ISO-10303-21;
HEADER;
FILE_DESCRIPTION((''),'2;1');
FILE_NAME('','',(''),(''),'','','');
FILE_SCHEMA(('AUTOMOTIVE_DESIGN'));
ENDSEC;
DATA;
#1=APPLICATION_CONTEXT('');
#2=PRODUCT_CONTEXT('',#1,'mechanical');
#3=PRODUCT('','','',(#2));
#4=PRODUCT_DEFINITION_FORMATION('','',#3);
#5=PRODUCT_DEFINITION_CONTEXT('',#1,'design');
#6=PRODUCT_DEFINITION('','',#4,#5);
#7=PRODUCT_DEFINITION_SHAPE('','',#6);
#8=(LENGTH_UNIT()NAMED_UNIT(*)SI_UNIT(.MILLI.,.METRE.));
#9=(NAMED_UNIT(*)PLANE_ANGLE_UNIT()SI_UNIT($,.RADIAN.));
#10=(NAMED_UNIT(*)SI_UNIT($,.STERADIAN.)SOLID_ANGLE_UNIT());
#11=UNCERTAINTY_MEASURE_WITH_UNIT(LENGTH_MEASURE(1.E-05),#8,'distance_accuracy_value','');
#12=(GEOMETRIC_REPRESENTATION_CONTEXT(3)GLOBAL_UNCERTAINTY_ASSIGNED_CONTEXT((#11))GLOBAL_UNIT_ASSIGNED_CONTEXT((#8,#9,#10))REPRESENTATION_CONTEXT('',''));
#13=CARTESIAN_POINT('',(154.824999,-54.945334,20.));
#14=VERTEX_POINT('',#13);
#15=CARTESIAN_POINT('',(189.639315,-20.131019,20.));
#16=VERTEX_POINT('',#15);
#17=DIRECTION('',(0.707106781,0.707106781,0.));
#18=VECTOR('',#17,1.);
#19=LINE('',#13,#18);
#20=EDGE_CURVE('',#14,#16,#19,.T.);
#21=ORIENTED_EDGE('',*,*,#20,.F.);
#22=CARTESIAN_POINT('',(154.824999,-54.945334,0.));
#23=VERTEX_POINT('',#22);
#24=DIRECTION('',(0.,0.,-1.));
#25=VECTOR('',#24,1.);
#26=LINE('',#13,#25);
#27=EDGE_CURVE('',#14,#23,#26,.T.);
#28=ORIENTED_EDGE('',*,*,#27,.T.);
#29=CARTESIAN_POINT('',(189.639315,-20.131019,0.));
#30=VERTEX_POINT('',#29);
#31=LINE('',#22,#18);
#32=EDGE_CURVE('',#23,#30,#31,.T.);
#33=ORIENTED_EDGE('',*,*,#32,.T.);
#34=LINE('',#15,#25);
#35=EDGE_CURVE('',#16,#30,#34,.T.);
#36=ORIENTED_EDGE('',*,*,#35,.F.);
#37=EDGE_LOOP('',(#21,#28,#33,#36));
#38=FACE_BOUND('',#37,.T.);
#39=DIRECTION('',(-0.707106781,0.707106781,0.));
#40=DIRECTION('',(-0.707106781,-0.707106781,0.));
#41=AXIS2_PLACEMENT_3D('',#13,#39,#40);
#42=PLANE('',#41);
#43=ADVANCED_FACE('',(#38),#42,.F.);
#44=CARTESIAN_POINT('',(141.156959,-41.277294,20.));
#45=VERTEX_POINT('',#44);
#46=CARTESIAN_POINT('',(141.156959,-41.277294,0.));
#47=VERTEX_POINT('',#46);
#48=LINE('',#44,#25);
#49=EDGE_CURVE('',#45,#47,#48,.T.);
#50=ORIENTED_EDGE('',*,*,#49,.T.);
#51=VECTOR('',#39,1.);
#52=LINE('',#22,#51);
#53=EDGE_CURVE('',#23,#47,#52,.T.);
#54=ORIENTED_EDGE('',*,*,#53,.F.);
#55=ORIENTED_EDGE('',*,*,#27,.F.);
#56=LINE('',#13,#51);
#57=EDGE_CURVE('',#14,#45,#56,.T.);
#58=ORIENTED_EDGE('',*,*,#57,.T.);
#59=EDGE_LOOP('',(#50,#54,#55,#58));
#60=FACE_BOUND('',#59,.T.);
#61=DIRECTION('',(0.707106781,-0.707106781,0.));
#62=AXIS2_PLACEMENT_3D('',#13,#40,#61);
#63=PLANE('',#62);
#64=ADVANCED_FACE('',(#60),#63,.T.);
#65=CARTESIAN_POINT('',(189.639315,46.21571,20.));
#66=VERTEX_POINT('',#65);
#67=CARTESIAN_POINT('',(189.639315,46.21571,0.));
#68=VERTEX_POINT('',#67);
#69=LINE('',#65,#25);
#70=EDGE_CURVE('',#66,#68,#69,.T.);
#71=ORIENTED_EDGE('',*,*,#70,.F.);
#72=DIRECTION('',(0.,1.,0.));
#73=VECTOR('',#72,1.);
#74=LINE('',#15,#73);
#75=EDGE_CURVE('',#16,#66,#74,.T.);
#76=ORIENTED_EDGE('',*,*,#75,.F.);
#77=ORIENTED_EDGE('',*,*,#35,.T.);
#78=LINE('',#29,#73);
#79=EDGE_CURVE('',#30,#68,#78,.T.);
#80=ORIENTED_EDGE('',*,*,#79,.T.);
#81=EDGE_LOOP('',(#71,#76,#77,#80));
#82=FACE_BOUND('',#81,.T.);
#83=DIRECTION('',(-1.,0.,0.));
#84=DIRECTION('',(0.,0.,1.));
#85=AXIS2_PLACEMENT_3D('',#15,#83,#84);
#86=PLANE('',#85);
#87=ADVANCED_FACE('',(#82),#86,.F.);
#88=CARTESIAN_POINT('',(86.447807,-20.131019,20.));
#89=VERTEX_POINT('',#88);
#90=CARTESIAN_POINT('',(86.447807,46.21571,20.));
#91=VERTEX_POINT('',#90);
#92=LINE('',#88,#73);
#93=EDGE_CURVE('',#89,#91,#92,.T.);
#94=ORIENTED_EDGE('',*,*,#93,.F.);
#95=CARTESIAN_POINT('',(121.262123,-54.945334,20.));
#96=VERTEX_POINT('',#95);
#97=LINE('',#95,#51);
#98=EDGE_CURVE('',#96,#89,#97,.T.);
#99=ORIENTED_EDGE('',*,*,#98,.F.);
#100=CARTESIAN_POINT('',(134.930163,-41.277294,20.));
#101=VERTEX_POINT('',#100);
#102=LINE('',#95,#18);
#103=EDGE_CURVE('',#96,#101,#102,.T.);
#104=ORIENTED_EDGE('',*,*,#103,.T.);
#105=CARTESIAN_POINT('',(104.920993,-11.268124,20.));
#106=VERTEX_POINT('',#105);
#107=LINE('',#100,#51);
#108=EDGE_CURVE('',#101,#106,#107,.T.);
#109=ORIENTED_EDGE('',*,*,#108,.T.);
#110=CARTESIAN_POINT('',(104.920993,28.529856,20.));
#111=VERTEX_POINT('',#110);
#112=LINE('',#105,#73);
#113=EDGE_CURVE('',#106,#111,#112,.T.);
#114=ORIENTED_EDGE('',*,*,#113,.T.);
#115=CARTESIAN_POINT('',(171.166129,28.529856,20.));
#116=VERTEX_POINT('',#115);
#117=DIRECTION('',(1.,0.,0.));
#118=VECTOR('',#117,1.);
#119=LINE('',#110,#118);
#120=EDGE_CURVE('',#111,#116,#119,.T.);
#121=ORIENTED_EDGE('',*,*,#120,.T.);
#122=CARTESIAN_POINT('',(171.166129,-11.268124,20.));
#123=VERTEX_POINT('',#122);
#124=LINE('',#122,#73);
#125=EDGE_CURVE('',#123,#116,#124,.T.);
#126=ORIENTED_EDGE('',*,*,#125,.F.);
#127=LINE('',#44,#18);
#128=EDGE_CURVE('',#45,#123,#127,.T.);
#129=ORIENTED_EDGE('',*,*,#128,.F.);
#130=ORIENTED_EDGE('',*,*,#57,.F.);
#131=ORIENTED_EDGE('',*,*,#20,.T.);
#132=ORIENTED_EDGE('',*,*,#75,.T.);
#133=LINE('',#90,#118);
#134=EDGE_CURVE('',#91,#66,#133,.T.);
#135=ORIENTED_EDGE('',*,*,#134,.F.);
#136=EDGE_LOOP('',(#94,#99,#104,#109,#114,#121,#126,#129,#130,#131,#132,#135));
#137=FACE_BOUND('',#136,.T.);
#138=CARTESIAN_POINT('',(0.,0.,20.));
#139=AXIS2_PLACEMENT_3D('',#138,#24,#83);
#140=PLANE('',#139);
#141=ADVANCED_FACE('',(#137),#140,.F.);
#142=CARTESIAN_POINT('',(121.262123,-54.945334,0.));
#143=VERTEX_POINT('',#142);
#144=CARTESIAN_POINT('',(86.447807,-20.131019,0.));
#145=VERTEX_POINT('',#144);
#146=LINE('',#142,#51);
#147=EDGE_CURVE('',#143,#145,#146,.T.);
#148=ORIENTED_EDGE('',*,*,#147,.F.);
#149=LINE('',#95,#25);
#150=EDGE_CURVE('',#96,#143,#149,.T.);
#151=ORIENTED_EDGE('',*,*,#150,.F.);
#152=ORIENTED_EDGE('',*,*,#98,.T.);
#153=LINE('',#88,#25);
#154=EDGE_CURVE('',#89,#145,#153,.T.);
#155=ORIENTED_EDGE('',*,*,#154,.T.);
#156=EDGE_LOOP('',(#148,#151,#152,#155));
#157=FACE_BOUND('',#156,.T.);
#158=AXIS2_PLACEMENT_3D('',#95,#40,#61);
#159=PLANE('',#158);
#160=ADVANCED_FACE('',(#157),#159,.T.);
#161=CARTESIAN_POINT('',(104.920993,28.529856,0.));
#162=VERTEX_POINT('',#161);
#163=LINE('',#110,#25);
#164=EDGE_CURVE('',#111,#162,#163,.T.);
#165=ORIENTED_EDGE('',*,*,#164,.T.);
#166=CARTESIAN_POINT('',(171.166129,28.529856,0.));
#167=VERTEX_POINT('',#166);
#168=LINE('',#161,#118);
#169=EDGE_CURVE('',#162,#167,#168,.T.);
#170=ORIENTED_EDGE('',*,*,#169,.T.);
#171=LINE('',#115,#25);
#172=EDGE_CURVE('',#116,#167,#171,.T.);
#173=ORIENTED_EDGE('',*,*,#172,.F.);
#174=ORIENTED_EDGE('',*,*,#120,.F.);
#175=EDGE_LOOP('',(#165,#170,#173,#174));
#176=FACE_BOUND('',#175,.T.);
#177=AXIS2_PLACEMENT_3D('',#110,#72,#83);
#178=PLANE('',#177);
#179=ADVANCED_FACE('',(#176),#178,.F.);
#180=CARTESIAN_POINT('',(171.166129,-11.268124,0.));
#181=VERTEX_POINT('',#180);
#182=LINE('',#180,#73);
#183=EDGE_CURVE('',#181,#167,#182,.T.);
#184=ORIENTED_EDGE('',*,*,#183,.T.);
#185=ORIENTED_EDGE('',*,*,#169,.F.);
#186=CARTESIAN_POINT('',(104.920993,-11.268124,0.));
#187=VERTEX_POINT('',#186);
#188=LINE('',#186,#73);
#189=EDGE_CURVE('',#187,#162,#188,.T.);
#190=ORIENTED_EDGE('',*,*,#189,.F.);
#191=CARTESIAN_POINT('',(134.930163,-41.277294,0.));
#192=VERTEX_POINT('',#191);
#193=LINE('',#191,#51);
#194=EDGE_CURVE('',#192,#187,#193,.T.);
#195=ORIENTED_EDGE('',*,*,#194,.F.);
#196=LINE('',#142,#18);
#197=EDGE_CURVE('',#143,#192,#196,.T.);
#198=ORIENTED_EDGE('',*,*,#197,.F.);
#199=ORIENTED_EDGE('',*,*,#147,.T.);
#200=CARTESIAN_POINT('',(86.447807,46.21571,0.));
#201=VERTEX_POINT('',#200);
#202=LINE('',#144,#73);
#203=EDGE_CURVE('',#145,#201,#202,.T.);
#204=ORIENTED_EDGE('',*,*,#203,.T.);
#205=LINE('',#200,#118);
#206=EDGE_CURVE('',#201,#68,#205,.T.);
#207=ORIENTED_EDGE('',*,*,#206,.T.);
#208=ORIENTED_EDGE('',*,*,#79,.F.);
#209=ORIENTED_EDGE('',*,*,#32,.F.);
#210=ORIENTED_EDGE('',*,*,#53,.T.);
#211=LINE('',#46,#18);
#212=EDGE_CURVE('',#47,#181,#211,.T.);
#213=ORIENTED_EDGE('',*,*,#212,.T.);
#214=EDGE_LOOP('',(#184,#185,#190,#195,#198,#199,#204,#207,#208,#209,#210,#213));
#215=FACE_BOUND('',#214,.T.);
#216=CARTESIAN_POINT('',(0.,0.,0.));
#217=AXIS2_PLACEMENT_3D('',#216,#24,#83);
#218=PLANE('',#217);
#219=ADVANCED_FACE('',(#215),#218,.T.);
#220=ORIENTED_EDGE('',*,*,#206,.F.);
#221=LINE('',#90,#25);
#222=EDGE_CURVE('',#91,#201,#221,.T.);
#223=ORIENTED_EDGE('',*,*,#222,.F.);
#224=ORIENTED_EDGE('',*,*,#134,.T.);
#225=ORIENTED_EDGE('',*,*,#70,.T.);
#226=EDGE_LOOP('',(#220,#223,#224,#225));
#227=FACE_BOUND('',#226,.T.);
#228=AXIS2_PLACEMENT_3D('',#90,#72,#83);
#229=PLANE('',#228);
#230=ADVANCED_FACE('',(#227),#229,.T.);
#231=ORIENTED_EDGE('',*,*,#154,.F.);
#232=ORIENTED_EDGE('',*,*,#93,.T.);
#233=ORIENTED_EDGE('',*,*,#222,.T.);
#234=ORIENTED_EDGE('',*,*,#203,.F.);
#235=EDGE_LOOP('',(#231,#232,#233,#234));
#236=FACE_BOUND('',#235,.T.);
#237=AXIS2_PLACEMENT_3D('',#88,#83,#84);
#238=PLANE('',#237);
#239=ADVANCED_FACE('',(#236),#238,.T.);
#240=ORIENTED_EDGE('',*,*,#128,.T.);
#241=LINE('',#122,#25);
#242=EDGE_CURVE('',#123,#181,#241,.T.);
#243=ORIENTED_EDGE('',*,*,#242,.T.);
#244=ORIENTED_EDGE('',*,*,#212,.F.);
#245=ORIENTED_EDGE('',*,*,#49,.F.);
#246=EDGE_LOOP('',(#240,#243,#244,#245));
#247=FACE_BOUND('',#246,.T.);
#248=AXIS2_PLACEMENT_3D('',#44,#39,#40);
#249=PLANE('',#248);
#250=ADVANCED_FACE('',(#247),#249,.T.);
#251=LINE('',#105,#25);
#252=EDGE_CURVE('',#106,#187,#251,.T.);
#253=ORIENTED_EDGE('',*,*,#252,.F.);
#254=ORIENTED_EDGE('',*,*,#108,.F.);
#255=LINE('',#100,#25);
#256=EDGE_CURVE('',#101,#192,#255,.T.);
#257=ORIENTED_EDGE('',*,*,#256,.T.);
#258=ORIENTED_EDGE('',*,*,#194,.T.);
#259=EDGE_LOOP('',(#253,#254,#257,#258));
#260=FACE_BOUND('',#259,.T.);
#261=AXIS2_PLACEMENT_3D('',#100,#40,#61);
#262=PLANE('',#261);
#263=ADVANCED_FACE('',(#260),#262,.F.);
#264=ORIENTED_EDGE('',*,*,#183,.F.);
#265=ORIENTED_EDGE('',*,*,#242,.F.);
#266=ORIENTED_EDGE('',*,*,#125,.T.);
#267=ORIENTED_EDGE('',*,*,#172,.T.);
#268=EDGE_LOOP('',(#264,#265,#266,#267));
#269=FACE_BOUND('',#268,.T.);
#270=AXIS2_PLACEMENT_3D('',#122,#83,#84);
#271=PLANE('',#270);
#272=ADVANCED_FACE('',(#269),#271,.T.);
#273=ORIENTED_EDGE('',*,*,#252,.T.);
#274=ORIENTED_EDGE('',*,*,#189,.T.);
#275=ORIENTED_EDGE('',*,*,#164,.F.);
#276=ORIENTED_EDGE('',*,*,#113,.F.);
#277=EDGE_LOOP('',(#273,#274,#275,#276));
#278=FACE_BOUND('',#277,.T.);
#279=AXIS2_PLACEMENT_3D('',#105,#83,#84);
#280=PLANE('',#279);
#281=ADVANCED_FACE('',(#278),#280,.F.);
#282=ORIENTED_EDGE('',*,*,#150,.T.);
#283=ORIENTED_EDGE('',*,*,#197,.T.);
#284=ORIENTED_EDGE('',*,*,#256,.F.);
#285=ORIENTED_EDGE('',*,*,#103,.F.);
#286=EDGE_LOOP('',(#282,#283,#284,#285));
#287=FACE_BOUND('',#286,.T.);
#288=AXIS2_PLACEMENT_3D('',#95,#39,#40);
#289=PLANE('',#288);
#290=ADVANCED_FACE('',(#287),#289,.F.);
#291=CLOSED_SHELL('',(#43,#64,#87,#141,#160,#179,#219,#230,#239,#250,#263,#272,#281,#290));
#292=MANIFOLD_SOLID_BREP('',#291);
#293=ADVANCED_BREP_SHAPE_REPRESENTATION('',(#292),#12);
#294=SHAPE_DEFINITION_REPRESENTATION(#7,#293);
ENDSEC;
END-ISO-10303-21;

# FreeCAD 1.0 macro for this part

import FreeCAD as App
import Part
import Sketcher

V = App.Vector
Q = App.Units.Quantity

doc = App.newDocument("Part")
params = doc.addObject("Spreadsheet::Sheet", "Params")
for row, (alias, value) in enumerate([
    ("pad1_length", "20 mm"),
], start=1):
    params.set(f"A{row}", alias)
    params.set(f"B{row}", "=" + value)
    params.setAlias(f"B{row}", alias)

body = doc.addObject("PartDesign::Body", "Body")

# Sketch on XY plane
sketch1 = body.newObject("Sketcher::SketchObject", "Sketch")
sketch1.AttachmentSupport = (doc.getObject("XY_Plane"), [""])
sketch1.MapMode = "FlatFace"
sketch1.addGeometry([
    Part.LineSegment(V(86, -20, 0), V(121, -55, 0)),  # 0
    Part.LineSegment(V(121, -55, 0), V(135, -41, 0)),  # 1
    Part.LineSegment(V(135, -41, 0), V(105, -11, 0)),  # 2
    Part.LineSegment(V(105, -11, 0), V(105, 29, 0)),  # 3
    Part.LineSegment(V(105, 29, 0), V(171, 29, 0)),  # 4
    Part.LineSegment(V(171, 29, 0), V(171, -11, 0)),  # 5
    Part.LineSegment(V(171, -11, 0), V(141, -41, 0)),  # 6
    Part.LineSegment(V(141, -41, 0), V(155, -55, 0)),  # 7
    Part.LineSegment(V(155, -55, 0), V(190, -20, 0)),  # 8
    Part.LineSegment(V(190, -20, 0), V(190, 46, 0)),  # 9
    Part.LineSegment(V(190, 46, 0), V(86, 46, 0)),  # 10
    Part.LineSegment(V(86, 46, 0), V(86, -20, 0)),  # 11
], False)
sketch1.addConstraint([
    Sketcher.Constraint("Coincident", 0, 2, 1, 1),
    Sketcher.Constraint("Coincident", 1, 2, 2, 1),
    Sketcher.Constraint("Coincident", 2, 2, 3, 1),
    Sketcher.Constraint("Coincident", 3, 2, 4, 1),
    Sketcher.Constraint("Coincident", 4, 2, 5, 1),
    Sketcher.Constraint("Coincident", 5, 2, 6, 1),
    Sketcher.Constraint("Coincident", 6, 2, 7, 1),
    Sketcher.Constraint("Coincident", 7, 2, 8, 1),
    Sketcher.Constraint("Coincident", 8, 2, 9, 1),
    Sketcher.Constraint("Coincident", 9, 2, 10, 1),
    Sketcher.Constraint("Coincident", 10, 2, 11, 1),
    Sketcher.Constraint("Coincident", 11, 2, 0, 1),
    Sketcher.Constraint("Vertical", 3),
    Sketcher.Constraint("Horizontal", 4),
    Sketcher.Constraint("Vertical", 5),
    Sketcher.Constraint("Vertical", 9),
    Sketcher.Constraint("Horizontal", 10),
    Sketcher.Constraint("Vertical", 11),
    Sketcher.Constraint("Perpendicular", 0, 1),
    Sketcher.Constraint("Perpendicular", 1, 2),
    Sketcher.Constraint("Perpendicular", 2, 6),
    Sketcher.Constraint("Perpendicular", 6, 7),
    Sketcher.Constraint("Perpendicular", 7, 8),
    Sketcher.Constraint("Horizontal", 2, 2, 5, 2),
    Sketcher.Constraint("Horizontal", 1, 2, 6, 2),
    Sketcher.Constraint("Horizontal", 0, 2, 7, 2),
    Sketcher.Constraint("Horizontal", 8, 2, 11, 2),
    Sketcher.Constraint("Equal", 2, 6),
    Sketcher.Constraint("DistanceX", -1, 1, 7, 2, Q("154.824999 mm")),
    Sketcher.Constraint("DistanceY", 3, 1, 3, 2, Q("39.79798 mm")),
    Sketcher.Constraint("DistanceY", 9, 1, 9, 2, Q("66.346729 mm")),
    Sketcher.Constraint("DistanceX", 4, 1, 4, 2, Q("66.245137 mm")),
    Sketcher.Constraint("DistanceX", 10, 2, 10, 1, Q("103.191508 mm")),
    Sketcher.Constraint("DistanceX", -1, 1, 4, 2, Q("171.166129 mm")),
    Sketcher.Constraint("DistanceX", -1, 1, 6, 2, Q("141.156959 mm")),
    Sketcher.Constraint("DistanceY", 8, 2, -1, 1, Q("20.131019 mm")),
])
pad1 = body.newObject("PartDesign::Pad", "Pad")
pad1.Profile = sketch1
pad1.setExpression("Length", "Params.pad1_length")

doc.recompute()
